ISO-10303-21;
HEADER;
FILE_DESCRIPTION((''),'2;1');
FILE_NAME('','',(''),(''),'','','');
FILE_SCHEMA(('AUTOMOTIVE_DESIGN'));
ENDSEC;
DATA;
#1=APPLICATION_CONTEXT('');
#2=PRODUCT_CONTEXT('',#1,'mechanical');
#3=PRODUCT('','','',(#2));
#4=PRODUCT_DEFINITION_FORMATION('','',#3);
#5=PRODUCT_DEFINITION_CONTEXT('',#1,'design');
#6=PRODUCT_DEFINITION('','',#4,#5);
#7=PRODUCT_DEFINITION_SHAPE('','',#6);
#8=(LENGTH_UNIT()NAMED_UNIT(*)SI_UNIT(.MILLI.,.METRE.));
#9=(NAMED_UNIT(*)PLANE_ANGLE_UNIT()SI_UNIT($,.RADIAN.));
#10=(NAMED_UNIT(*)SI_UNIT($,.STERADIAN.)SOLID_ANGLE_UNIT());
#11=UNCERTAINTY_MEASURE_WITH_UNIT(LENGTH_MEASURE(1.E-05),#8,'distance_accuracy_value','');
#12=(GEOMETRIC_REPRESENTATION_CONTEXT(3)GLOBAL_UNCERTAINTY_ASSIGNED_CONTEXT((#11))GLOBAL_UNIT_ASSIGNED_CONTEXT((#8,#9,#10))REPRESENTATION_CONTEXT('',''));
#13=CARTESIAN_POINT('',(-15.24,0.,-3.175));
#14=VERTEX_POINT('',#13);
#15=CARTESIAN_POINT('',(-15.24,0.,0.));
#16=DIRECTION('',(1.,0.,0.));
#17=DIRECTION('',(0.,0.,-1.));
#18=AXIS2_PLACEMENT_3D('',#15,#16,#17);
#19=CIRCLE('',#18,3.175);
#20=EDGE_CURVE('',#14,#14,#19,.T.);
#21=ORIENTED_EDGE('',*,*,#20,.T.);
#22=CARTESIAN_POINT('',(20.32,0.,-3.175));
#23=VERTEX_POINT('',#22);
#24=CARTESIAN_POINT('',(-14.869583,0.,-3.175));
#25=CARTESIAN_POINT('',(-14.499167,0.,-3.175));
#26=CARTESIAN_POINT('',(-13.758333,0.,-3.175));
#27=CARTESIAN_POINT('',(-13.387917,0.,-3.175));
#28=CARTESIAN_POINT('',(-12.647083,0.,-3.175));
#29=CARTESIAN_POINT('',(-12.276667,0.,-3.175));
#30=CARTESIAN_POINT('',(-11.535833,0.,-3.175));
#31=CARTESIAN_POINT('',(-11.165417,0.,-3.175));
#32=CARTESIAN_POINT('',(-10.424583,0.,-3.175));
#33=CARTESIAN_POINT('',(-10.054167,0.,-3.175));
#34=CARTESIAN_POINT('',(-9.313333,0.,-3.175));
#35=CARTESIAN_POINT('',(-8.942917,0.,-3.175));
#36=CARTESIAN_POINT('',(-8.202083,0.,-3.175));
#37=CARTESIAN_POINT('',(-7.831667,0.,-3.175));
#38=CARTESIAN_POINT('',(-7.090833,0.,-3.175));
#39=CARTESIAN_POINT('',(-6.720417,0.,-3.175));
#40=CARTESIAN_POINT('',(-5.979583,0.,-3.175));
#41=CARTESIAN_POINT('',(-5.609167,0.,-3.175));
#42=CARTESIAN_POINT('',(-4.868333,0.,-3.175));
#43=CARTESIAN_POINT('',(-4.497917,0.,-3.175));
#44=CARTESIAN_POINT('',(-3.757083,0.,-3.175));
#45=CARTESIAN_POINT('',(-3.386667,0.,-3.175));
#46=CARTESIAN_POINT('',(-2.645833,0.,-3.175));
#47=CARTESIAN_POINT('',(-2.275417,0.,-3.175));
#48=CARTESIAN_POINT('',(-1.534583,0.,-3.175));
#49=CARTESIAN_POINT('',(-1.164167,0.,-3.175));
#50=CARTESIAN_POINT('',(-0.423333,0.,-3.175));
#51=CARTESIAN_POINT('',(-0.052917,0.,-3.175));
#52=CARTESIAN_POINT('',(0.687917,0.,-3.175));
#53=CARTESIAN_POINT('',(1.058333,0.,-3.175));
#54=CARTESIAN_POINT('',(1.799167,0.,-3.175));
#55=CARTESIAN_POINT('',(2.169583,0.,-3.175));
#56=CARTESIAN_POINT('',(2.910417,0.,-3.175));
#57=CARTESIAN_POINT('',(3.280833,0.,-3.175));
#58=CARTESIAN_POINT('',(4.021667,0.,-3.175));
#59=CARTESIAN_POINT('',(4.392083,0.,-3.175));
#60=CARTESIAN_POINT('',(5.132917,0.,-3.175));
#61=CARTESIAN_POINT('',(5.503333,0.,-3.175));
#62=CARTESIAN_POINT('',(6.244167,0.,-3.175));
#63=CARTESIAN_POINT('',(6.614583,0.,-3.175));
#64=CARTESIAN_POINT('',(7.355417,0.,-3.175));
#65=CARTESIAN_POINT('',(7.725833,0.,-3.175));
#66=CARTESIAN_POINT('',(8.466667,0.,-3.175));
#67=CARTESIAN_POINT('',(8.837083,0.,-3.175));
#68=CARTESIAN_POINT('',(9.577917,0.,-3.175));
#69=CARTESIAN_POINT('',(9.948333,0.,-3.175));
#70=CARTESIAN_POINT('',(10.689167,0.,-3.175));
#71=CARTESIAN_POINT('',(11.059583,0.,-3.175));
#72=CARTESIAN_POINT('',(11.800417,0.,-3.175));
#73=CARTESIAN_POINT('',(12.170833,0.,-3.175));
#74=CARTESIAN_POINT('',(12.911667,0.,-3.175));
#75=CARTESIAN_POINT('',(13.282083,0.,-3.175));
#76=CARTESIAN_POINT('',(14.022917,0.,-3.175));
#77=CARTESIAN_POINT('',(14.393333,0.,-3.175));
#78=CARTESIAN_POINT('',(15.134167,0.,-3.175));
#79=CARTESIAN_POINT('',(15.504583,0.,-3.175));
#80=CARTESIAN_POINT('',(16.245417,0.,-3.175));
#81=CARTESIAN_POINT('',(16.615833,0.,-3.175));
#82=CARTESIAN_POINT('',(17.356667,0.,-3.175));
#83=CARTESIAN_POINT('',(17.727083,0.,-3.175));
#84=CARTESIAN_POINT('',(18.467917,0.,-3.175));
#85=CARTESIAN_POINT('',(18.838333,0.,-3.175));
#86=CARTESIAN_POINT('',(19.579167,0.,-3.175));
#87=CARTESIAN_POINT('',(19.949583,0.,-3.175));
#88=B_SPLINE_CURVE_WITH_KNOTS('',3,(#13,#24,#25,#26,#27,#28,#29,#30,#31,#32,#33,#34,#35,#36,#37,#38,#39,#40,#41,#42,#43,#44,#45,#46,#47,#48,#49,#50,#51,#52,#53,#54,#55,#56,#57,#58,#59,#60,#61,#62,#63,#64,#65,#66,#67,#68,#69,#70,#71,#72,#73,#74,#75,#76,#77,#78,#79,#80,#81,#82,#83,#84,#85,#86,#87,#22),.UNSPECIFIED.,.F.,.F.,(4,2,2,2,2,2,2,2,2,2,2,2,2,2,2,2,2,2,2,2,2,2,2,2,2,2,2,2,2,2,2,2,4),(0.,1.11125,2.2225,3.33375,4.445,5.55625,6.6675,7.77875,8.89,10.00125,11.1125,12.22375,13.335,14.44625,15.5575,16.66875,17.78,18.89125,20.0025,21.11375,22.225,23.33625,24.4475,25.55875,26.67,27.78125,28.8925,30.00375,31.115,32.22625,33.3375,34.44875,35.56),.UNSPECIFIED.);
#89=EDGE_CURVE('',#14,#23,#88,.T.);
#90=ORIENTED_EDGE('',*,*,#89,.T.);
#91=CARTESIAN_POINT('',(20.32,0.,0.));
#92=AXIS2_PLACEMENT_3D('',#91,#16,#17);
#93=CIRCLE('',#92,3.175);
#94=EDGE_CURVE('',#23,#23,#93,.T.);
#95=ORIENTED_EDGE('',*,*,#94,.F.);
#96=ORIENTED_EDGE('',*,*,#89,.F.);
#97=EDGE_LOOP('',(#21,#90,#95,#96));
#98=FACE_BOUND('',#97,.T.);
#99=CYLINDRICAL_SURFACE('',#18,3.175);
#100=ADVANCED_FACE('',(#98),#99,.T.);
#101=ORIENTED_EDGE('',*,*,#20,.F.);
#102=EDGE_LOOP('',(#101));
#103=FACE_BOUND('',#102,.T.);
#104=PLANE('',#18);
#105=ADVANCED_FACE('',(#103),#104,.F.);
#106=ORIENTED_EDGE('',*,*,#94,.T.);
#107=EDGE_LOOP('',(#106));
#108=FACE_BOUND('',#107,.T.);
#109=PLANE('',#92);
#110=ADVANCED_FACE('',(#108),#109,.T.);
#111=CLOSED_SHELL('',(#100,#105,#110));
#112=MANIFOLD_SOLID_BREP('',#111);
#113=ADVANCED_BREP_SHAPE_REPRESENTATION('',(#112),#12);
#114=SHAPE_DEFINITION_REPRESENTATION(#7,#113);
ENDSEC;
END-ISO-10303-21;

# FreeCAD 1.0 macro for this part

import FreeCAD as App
import Part
import Sketcher
from FreeCAD import Vector
Q = App.Units.Quantity

doc = App.newDocument("Part")
body = doc.addObject("PartDesign::Body", "Body")

sketch1 = body.newObject("Sketcher::SketchObject", "Sketch")
sketch1.AttachmentSupport = (doc.getObject("YZ_Plane"), [""])
sketch1.MapMode = "FlatFace"
sketch1.addGeometry(Part.Circle(Vector(0, 0, 0), Vector(0, 0, 1), 3.2), False)
sketch1.addConstraint(Sketcher.Constraint("Coincident", 0, 3, -1, 1))
sketch1.addConstraint(Sketcher.Constraint("Diameter", 0, Q("0.25 in")))
pad1 = body.newObject("PartDesign::Pad", "Pad")
pad1.Profile = sketch1
pad1.Type = "TwoLengths"
pad1.Length = Q("0.8 in")
pad1.Length2 = Q("0.6 in")

doc.recompute()
